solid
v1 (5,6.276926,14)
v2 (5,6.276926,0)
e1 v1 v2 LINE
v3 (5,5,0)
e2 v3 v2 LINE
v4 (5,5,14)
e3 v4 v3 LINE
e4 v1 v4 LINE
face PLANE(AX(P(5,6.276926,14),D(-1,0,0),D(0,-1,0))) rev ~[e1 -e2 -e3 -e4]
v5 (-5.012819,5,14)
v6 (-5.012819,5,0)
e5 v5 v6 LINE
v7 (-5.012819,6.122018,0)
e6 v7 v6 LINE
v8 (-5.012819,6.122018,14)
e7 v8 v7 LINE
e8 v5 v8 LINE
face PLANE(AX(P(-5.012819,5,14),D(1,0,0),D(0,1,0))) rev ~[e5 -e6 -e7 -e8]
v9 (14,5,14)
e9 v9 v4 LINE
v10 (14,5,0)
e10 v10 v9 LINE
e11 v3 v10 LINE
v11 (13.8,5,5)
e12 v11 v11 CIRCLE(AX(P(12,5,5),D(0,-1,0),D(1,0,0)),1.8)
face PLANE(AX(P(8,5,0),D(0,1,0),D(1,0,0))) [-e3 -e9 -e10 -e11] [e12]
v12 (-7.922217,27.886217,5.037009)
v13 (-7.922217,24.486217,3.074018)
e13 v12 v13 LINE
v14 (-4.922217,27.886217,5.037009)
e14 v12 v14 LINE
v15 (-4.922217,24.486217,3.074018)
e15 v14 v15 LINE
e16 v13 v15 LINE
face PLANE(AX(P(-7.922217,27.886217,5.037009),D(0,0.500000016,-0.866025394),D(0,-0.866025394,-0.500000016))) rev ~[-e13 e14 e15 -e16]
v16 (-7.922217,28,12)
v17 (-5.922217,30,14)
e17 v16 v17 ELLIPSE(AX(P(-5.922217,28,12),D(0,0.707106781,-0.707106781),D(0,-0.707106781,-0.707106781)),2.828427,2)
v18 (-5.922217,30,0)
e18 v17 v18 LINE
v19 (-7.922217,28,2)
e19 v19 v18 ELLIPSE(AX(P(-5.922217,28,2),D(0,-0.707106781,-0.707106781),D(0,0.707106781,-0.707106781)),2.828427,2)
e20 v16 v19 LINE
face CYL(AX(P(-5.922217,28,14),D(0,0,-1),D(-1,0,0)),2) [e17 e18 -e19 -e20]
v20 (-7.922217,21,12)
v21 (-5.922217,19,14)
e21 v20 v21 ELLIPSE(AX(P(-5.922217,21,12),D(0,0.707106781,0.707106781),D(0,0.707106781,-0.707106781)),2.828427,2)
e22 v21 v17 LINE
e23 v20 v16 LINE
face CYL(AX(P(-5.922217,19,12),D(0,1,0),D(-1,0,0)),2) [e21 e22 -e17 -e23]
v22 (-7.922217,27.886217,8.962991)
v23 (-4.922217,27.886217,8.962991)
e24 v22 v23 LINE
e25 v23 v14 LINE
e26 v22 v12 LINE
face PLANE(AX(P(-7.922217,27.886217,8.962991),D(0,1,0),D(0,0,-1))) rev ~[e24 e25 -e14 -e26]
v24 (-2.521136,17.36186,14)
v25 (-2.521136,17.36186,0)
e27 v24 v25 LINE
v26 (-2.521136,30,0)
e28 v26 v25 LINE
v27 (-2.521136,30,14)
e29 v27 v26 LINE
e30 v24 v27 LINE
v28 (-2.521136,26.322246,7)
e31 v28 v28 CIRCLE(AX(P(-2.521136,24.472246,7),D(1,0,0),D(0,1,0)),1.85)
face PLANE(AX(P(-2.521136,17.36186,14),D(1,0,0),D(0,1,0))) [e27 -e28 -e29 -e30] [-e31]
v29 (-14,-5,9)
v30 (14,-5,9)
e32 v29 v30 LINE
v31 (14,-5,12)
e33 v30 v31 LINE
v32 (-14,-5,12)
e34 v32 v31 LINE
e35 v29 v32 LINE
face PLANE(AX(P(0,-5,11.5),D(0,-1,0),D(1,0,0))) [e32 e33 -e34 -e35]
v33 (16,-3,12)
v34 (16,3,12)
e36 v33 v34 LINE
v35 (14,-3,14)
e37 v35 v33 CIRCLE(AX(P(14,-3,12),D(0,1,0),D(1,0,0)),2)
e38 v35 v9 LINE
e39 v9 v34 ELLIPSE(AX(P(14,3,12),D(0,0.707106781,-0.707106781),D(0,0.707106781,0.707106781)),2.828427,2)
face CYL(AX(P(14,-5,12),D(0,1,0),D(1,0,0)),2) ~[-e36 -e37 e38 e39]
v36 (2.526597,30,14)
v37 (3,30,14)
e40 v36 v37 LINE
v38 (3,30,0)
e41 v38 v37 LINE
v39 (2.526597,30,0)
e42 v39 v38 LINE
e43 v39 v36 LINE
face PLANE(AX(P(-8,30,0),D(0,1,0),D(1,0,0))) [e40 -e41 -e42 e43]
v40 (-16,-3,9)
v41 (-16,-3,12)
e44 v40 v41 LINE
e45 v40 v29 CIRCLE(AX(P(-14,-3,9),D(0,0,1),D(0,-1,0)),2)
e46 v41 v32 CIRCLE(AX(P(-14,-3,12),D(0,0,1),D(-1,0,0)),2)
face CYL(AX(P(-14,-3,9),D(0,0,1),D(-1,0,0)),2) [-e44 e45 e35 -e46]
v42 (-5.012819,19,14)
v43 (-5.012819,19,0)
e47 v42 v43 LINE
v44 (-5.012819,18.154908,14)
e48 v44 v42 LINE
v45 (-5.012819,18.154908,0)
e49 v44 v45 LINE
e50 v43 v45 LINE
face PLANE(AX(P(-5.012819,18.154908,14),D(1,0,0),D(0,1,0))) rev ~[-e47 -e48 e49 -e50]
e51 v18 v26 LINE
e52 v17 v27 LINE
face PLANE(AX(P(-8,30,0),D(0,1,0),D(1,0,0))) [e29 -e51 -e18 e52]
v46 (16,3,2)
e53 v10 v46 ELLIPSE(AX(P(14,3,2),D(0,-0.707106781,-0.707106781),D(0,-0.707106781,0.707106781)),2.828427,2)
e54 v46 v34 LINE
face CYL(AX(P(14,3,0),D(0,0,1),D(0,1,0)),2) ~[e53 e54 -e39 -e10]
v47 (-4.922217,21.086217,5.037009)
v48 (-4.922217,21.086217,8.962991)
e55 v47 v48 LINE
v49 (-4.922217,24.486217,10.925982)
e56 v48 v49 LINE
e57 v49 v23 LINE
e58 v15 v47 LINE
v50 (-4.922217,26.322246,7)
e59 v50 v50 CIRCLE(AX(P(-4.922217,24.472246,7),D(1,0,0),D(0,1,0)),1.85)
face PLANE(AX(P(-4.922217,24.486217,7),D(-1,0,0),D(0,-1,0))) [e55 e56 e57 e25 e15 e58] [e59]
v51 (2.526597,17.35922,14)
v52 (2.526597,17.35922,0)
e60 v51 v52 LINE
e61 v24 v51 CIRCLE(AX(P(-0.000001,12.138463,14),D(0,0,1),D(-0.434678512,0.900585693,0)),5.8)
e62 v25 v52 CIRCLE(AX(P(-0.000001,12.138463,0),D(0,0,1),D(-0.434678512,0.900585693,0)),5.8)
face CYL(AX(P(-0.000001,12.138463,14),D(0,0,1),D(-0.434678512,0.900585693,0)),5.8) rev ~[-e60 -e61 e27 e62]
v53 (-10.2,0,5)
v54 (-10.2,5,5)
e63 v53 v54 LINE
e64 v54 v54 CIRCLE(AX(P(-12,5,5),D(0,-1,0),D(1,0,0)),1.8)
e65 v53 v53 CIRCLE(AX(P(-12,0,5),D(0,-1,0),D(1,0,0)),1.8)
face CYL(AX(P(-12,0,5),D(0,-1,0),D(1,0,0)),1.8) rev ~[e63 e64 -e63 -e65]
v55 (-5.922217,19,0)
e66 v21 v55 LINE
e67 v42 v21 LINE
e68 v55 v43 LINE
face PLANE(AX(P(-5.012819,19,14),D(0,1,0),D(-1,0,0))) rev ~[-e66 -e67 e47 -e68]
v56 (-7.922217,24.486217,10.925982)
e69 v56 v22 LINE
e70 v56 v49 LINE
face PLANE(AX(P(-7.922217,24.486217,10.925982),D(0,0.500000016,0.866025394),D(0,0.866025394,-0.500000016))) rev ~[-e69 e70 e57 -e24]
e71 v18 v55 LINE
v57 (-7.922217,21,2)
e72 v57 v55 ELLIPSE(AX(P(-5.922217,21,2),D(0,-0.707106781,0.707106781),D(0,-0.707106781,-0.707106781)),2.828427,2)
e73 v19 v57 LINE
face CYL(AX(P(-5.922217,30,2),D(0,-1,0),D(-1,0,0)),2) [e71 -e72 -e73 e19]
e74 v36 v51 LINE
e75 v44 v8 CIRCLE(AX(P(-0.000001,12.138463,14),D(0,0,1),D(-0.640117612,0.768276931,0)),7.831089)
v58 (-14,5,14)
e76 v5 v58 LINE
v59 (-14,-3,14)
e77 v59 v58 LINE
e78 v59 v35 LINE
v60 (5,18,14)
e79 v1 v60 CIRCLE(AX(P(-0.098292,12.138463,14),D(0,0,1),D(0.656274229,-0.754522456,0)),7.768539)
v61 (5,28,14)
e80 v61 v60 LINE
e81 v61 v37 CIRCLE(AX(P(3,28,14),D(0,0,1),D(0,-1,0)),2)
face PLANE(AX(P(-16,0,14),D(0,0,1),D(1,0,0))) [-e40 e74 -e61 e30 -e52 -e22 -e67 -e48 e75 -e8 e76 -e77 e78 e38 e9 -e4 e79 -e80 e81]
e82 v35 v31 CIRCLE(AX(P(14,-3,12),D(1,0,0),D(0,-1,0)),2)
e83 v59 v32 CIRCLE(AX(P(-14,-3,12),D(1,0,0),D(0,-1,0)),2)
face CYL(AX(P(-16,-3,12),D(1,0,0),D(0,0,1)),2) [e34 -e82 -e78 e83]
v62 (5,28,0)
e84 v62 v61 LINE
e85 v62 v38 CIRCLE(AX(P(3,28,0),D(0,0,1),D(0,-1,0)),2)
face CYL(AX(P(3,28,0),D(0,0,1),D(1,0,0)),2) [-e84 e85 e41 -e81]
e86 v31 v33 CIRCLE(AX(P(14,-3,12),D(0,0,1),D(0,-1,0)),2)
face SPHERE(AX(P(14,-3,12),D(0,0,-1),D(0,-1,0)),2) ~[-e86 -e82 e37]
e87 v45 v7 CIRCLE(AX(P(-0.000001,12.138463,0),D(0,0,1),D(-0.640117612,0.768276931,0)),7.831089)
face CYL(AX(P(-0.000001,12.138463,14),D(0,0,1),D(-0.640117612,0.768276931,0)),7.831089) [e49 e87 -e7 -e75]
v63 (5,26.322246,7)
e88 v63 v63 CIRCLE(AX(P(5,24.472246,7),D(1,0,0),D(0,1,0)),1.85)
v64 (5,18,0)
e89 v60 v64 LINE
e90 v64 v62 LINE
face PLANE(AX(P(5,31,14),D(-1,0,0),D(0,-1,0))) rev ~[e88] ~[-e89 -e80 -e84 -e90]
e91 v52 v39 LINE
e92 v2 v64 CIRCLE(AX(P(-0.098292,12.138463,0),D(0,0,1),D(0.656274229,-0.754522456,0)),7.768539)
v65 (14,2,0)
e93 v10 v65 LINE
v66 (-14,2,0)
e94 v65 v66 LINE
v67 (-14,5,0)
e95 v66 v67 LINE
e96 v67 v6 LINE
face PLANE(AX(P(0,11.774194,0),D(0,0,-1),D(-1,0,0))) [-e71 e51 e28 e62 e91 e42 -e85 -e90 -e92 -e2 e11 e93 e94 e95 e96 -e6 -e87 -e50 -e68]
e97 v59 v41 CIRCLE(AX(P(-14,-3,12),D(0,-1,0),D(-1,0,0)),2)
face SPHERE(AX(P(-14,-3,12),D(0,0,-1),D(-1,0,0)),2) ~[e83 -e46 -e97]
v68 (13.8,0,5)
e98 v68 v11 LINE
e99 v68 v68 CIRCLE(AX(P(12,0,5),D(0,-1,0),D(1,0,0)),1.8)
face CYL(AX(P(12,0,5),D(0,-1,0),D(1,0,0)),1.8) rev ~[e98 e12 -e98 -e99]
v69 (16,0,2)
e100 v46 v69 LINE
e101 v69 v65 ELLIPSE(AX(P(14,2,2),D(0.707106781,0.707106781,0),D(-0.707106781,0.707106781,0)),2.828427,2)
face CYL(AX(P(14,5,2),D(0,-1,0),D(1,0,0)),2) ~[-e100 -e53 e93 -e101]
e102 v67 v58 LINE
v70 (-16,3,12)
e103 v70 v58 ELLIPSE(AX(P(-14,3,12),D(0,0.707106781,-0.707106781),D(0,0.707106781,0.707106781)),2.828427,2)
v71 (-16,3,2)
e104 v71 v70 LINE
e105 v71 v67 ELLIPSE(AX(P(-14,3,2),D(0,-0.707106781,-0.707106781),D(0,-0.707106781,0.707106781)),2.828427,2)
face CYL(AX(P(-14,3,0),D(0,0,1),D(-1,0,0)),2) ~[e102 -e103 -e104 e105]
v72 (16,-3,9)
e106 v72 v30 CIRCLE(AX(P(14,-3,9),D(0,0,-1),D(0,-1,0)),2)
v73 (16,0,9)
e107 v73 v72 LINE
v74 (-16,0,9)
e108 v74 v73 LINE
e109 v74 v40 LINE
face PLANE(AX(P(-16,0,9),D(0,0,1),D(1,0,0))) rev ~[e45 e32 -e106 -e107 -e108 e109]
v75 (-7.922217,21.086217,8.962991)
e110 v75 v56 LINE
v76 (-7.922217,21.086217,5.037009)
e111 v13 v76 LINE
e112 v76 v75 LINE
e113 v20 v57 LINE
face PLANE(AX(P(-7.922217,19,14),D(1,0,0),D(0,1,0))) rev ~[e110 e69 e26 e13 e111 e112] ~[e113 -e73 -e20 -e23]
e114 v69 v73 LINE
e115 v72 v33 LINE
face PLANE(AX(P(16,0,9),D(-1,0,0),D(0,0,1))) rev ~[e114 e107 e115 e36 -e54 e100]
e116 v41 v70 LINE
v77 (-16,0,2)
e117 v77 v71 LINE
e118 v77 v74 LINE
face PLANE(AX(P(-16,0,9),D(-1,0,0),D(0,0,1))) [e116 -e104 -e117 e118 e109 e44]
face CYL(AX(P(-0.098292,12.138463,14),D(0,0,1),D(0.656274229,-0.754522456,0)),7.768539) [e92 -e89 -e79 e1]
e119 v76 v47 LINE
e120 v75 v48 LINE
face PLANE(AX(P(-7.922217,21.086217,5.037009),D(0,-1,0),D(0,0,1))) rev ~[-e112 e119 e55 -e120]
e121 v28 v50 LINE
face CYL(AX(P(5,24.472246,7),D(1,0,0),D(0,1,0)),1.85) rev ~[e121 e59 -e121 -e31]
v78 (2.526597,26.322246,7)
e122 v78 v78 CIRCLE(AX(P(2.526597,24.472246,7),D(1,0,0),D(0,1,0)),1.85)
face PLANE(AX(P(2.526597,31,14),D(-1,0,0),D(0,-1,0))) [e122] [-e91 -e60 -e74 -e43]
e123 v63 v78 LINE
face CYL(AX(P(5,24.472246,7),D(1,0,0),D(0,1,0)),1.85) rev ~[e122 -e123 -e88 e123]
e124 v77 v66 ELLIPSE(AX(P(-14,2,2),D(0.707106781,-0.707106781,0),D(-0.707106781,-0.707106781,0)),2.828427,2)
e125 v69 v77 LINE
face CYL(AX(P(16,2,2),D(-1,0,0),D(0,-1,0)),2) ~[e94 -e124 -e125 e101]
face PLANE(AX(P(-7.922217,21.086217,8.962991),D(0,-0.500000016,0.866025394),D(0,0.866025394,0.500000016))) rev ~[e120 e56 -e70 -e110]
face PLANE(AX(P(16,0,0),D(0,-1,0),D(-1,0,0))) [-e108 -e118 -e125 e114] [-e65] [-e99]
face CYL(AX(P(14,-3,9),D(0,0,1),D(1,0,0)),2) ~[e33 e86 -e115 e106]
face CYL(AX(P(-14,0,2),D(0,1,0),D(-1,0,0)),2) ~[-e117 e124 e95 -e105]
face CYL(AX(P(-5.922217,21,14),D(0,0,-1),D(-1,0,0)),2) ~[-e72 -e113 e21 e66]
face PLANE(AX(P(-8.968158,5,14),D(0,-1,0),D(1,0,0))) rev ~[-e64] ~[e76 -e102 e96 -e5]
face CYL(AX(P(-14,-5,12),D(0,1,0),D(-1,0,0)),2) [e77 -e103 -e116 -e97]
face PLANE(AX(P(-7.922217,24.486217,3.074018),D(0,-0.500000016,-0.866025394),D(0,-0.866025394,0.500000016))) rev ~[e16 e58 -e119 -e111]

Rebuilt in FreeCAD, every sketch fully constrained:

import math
import FreeCAD as App
import Part
import Sketcher
Q = App.Units.Quantity


def edges_at(feature, points):
    """Names of the edges that pass closest to the given points."""
    edges = feature.Shape.Edges
    near = lambda p: min(range(len(edges)), key=lambda i: edges[i].distToShape(Part.Vertex(*p))[0])
    return sorted({f"Edge{near(p) + 1}" for p in points})


def add_polygon(sketch, points):
    """Adds a closed chain of lines whose ends are joined by coincident constraints."""
    first, n = sketch.GeometryCount, len(points)
    for a, b in zip(points, points[1:] + points[:1]):
        sketch.addGeometry(Part.LineSegment(App.Vector(*a, 0), App.Vector(*b, 0)), False)
    for i in range(n):
        sketch.addConstraint(Sketcher.Constraint("Coincident", first + i, 2, first + (i + 1) % n, 1))

doc = App.newDocument("Part")
params = doc.addObject("Spreadsheet::Sheet", "Params")
for row, (alias, value) in enumerate([
    ("sketch1_width", "16 mm"),
    ("sketch1_width2", "8 mm"),
    ("sketch1_height", "25 mm"),
    ("sketch1_height2", "5 mm"),
    ("pad1_length", "14 mm"),
    ("sketch2_radius", "5.8 mm"),
    ("sketch2_width", "5 mm"),
    ("sketch2_height", "13 mm"),
    ("sketch2_height2", "26 mm"),
    ("pocket2_length", "3 mm"),
    ("sketch4_diameter", "3.7 mm"),
    ("sketch5_diameter", "3.6 mm"),
    ("pocket4_length", "5 mm"),
    ("sketch6_width", "32 mm"),
    ("sketch6_height", "5 mm"),
    ("pad2_length", "5 mm"),
    ("fillet_radius", "2 mm"),
], start=1):
    params.set(f"A{row}", alias)
    params.set(f"B{row}", "=" + value)
    params.setAlias(f"B{row}", alias)

body = doc.addObject("PartDesign::Body", "Body")

# Sketch on XY plane
sketch1 = doc.addObject("Sketcher::SketchObject", "Sketch")
body.addObject(sketch1)
sketch1.AttachmentSupport = (doc.XY_Plane, [""])
sketch1.MapMode = "FlatFace"
add_polygon(sketch1, [(8, 30), (-8, 30), (-8, 5), (-16, 5), (-16, 0), (16, 0), (16, 5), (8, 5)])  # lines 0-7
sketch1.addConstraint([
    Sketcher.Constraint("Horizontal", 0),
    Sketcher.Constraint("Vertical", 1),
    Sketcher.Constraint("Horizontal", 2),
    Sketcher.Constraint("Vertical", 3),
    Sketcher.Constraint("Horizontal", 4),
    Sketcher.Constraint("Vertical", 5),
    Sketcher.Constraint("Horizontal", 6),
    Sketcher.Constraint("Vertical", 7),
    Sketcher.Constraint("Symmetric", 3, 2, 4, 2, -1, 1),
    Sketcher.Constraint("Symmetric", 1, 2, 6, 2, -2),
    Sketcher.Constraint("DistanceX", 0, 2, 0, 1, 16.0),
    Sketcher.Constraint("DistanceX", 2, 2, 2, 1, 8.0),
    Sketcher.Constraint("DistanceY", 1, 2, 1, 1, 25.0),
    Sketcher.Constraint("DistanceY", 3, 2, 3, 1, 5.0),
])
sketch1.setExpression("Constraints[18]", "Params.sketch1_width")
sketch1.setExpression("Constraints[19]", "Params.sketch1_width2")
sketch1.setExpression("Constraints[20]", "Params.sketch1_height")
sketch1.setExpression("Constraints[21]", "Params.sketch1_height2")
pad1 = doc.addObject("PartDesign::Pad", "Pad")
body.addObject(pad1)
pad1.Profile = sketch1
pad1.setExpression("Length", "Params.pad1_length")

# Sketch on XY plane
sketch2 = doc.addObject("Sketcher::SketchObject", "Sketch001")
body.addObject(sketch2)
sketch2.AttachmentSupport = (doc.XY_Plane, [""])
sketch2.MapMode = "FlatFace"
sketch2.AttachmentOffset = App.Placement(App.Vector(0, 0, 14), App.Rotation())
sketch2.addGeometry([
    Part.ArcOfCircle(Part.Circle(App.Vector(0, 12.1, 0), App.Vector(0, 0, 1), 7.8), math.radians(130), math.radians(230)),  # 0
    Part.LineSegment(App.Vector(-5, 18.2, 0), App.Vector(-5, 19, 0)),  # 1
    Part.LineSegment(App.Vector(-5, 19, 0), App.Vector(-7.9, 19, 0)),  # 2
    Part.LineSegment(App.Vector(-7.9, 19, 0), App.Vector(-7.9, 30.9, 0)),  # 3
    Part.LineSegment(App.Vector(-7.9, 30.9, 0), App.Vector(-8.9, 30.9, 0)),  # 4
    Part.LineSegment(App.Vector(-8.9, 30.9, 0), App.Vector(-9, 5, 0)),  # 5
    Part.LineSegment(App.Vector(-9, 5, 0), App.Vector(-5, 5, 0)),  # 6
    Part.LineSegment(App.Vector(-5, 5, 0), App.Vector(-5, 6.1, 0)),  # 7
    Part.LineSegment(App.Vector(5, 31, 0), App.Vector(5, 18, 0)),  # 8
    Part.ArcOfCircle(Part.Circle(App.Vector(-0.1, 12.1, 0), App.Vector(0, 0, 1), 7.8), math.radians(-49), math.radians(49)),  # 9
    Part.LineSegment(App.Vector(5, 6.3, 0), App.Vector(5, 5, 0)),  # 10
    Part.LineSegment(App.Vector(5, 5, 0), App.Vector(10, 5, 0)),  # 11
    Part.LineSegment(App.Vector(10, 5, 0), App.Vector(10, 31, 0)),  # 12
    Part.LineSegment(App.Vector(10, 31, 0), App.Vector(5, 31, 0)),  # 13
    Part.ArcOfCircle(Part.Circle(App.Vector(0, 12.1, 0), App.Vector(0, 0, 1), 5.8), math.radians(116), math.radians(424)),  # 14
    Part.LineSegment(App.Vector(2.5, 17.4, 0), App.Vector(2.5, 31, 0)),  # 15
    Part.LineSegment(App.Vector(2.5, 31, 0), App.Vector(-2.5, 31, 0)),  # 16
    Part.LineSegment(App.Vector(-2.5, 31, 0), App.Vector(-2.5, 17.4, 0)),  # 17
], False)
sketch2.addConstraint([
    Sketcher.Constraint("Coincident", 0, 1, 1, 1),
    Sketcher.Constraint("Coincident", 1, 2, 2, 1),
    Sketcher.Constraint("Coincident", 2, 2, 3, 1),
    Sketcher.Constraint("Coincident", 3, 2, 4, 1),
    Sketcher.Constraint("Coincident", 4, 2, 5, 1),
    Sketcher.Constraint("Coincident", 5, 2, 6, 1),
    Sketcher.Constraint("Coincident", 6, 2, 7, 1),
    Sketcher.Constraint("Coincident", 7, 2, 0, 2),
    Sketcher.Constraint("Coincident", 8, 2, 9, 2),
    Sketcher.Constraint("Coincident", 9, 1, 10, 1),
    Sketcher.Constraint("Coincident", 10, 2, 11, 1),
    Sketcher.Constraint("Coincident", 11, 2, 12, 1),
    Sketcher.Constraint("Coincident", 12, 2, 13, 1),
    Sketcher.Constraint("Coincident", 13, 2, 8, 1),
    Sketcher.Constraint("Coincident", 14, 2, 15, 1),
    Sketcher.Constraint("Coincident", 15, 2, 16, 1),
    Sketcher.Constraint("Coincident", 16, 2, 17, 1),
    Sketcher.Constraint("Coincident", 17, 2, 14, 1),
    Sketcher.Constraint("Vertical", 1),
    Sketcher.Constraint("Horizontal", 2),
    Sketcher.Constraint("Vertical", 3),
    Sketcher.Constraint("Horizontal", 6),
    Sketcher.Constraint("Vertical", 7),
    Sketcher.Constraint("Vertical", 8),
    Sketcher.Constraint("Vertical", 10),
    Sketcher.Constraint("Horizontal", 11),
    Sketcher.Constraint("Vertical", 12),
    Sketcher.Constraint("Horizontal", 13),
    Sketcher.Constraint("Vertical", 15),
    Sketcher.Constraint("Horizontal", 16),
    Sketcher.Constraint("Vertical", 17),
    Sketcher.Constraint("Coincident", 14, 3, 0, 3),
    Sketcher.Constraint("PointOnObject", 0, 3, -2),
    Sketcher.Constraint("Horizontal", 0, 3, 9, 3),
    Sketcher.Constraint("Horizontal", 6, 2, 10, 2),
    Sketcher.Constraint("Horizontal", 13, 2, 15, 2),
    Sketcher.Constraint("Vertical", 1, 2, 6, 2),
    Sketcher.Constraint("Vertical", 8, 2, 9, 1),
    Sketcher.Constraint("Radius", 14, 5.8),
    Sketcher.Constraint("DistanceX", 11, 1, 11, 2, 5.0),
    Sketcher.Constraint("DistanceY", 8, 2, 8, 1, 13.0),
    Sketcher.Constraint("DistanceY", 12, 1, 12, 2, 26.0),
    Sketcher.Constraint("DistanceY", -1, 1, 1, 2, 19.0),
    Sketcher.Constraint("DistanceY", -1, 1, 5, 2, 5.0),
    Sketcher.Constraint("DistanceX", -1, 1, 8, 2, 5.0),
    Sketcher.Constraint("Radius", 0, 7.831089),
    Sketcher.Constraint("Radius", 9, 7.768539),
    Sketcher.Constraint("DistanceX", 6, 1, 6, 2, 3.955339),
    Sketcher.Constraint("DistanceY", 3, 1, 3, 2, 11.944389),
    Sketcher.Constraint("DistanceY", 15, 1, 15, 2, 13.64078),
    Sketcher.Constraint("DistanceY", 17, 2, 17, 1, 13.63814),
    Sketcher.Constraint("DistanceX", 0, 3, 14, 2, 2.526598),
    Sketcher.Constraint("Distance", 5, 25.926482),
    Sketcher.Constraint("DistanceX", 2, 2, 2, 1, 2.909398),
    Sketcher.Constraint("DistanceY", 1, 1, 1, 2, 0.845092),
    Sketcher.Constraint("DistanceX", 4, 2, 3, 2, 0.968158),
])
sketch2.setExpression("Constraints[38]", "Params.sketch2_radius")
sketch2.setExpression("Constraints[39]", "Params.sketch2_width")
sketch2.setExpression("Constraints[40]", "Params.sketch2_height")
sketch2.setExpression("Constraints[41]", "Params.sketch2_height2")
pocket1 = doc.addObject("PartDesign::Pocket", "Pocket")
body.addObject(pocket1)
pocket1.Profile = sketch2
pocket1.Type = "ThroughAll"

# Sketch on YZ plane
sketch3 = doc.addObject("Sketcher::SketchObject", "Sketch002")
body.addObject(sketch3)
sketch3.AttachmentSupport = (doc.YZ_Plane, [""])
sketch3.MapMode = "FlatFace"
sketch3.AttachmentOffset = App.Placement(App.Vector(0, 0, -7.922217), App.Rotation())
add_polygon(sketch3, [(21.1, 5), (21.1, 9), (24.5, 10.9), (27.9, 9), (27.9, 5), (24.5, 3.1)])  # lines 0-5
sketch3.addConstraint([
    Sketcher.Constraint("Vertical", 0),
    Sketcher.Constraint("Vertical", 3),
    Sketcher.Constraint("Parallel", 1, 4),
    Sketcher.Constraint("Parallel", 2, 5),
    Sketcher.Constraint("Horizontal", 0, 2, 2, 2),
    Sketcher.Constraint("Horizontal", 3, 2, 5, 2),
    Sketcher.Constraint("Vertical", 1, 2, 4, 2),
    Sketcher.Constraint("Angle", 1, Q("30.000001 deg")),
    Sketcher.Constraint("DistanceX", 0, 2, 1, 2, 3.4),
    Sketcher.Constraint("DistanceY", 0, 1, 0, 2, 3.925982),
    Sketcher.Constraint("DistanceY", -1, 1, 0, 2, 8.962991),
    Sketcher.Constraint("DistanceX", -1, 1, 0, 2, 21.086217),
])
pocket2 = doc.addObject("PartDesign::Pocket", "Pocket001")
body.addObject(pocket2)
pocket2.Profile = sketch3
pocket2.setExpression("Length", "Params.pocket2_length")
pocket2.Reversed = True

# Sketch on YZ plane
sketch4 = doc.addObject("Sketcher::SketchObject", "Sketch003")
body.addObject(sketch4)
sketch4.AttachmentSupport = (doc.YZ_Plane, [""])
sketch4.MapMode = "FlatFace"
sketch4.AttachmentOffset = App.Placement(App.Vector(0, 0, 5), App.Rotation())
sketch4.addGeometry(Part.Circle(App.Vector(24.5, 7, 0), App.Vector(0, 0, 1), 1.9), False)
sketch4.addConstraint([
    Sketcher.Constraint("Diameter", 0, 3.7),
    Sketcher.Constraint("DistanceY", -1, 1, 0, 3, 7.0),
    Sketcher.Constraint("DistanceX", -1, 1, 0, 3, 24.472246),
])
sketch4.setExpression("Constraints[0]", "Params.sketch4_diameter")
pocket3 = doc.addObject("PartDesign::Pocket", "Pocket002")
body.addObject(pocket3)
pocket3.Profile = sketch4
pocket3.Type = "ThroughAll"

# Sketch on XZ plane
sketch5 = doc.addObject("Sketcher::SketchObject", "Sketch004")
body.addObject(sketch5)
sketch5.AttachmentSupport = (doc.XZ_Plane, [""])
sketch5.MapMode = "FlatFace"
sketch5.addGeometry([
    Part.Circle(App.Vector(-12, 5, 0), App.Vector(0, 0, 1), 1.8),
    Part.Circle(App.Vector(12, 5, 0), App.Vector(0, 0, 1), 1.8),
], False)
sketch5.addConstraint([
    Sketcher.Constraint("Equal", 0, 1),
    Sketcher.Constraint("Symmetric", 0, 3, 1, 3, -2),
    Sketcher.Constraint("Diameter", 0, 3.6),
    Sketcher.Constraint("DistanceX", 0, 3, -1, 1, 12.0),
    Sketcher.Constraint("DistanceY", -1, 1, 0, 3, 5.0),
])
sketch5.setExpression("Constraints[2]", "Params.sketch5_diameter")
pocket4 = doc.addObject("PartDesign::Pocket", "Pocket003")
body.addObject(pocket4)
pocket4.Profile = sketch5
pocket4.setExpression("Length", "Params.pocket4_length")

# Sketch on XZ plane
sketch6 = doc.addObject("Sketcher::SketchObject", "Sketch005")
body.addObject(sketch6)
sketch6.AttachmentSupport = (doc.XZ_Plane, [""])
sketch6.MapMode = "FlatFace"
add_polygon(sketch6, [(-16, 14), (-16, 9), (16, 9), (16, 14)])  # lines 0-3
sketch6.addConstraint([
    Sketcher.Constraint("Vertical", 0),
    Sketcher.Constraint("Horizontal", 1),
    Sketcher.Constraint("Vertical", 2),
    Sketcher.Constraint("Horizontal", 3),
    Sketcher.Constraint("DistanceX", 1, 1, 1, 2, 32.0),
    Sketcher.Constraint("DistanceY", 0, 2, 0, 1, 5.0),
    Sketcher.Constraint("DistanceX", 0, 2, -1, 1, 16.0),
    Sketcher.Constraint("DistanceY", -1, 1, 0, 2, 9.0),
])
sketch6.setExpression("Constraints[8]", "Params.sketch6_width")
sketch6.setExpression("Constraints[9]", "Params.sketch6_height")
pad2 = doc.addObject("PartDesign::Pad", "Pad001")
body.addObject(pad2)
pad2.Profile = sketch6
pad2.setExpression("Length", "Params.pad2_length")
doc.recompute()

fillet = doc.addObject("PartDesign::Fillet", "Fillet")
body.addObject(fillet)
fillet.Base = (pad2, edges_at(pad2, [
    (-16, -5, 11.5),
    (16, -5, 11.5),
    (16, 5, 7),
    (5, 30, 7),
    (-16, 5, 7),
    (-7.922, 30, 7),
    (0, 0, 0),
    (-16, 0, 14),
    (0, -5, 14),
    (16, 0, 14),
    (16, 2.5, 0),
    (-16, 2.5, 0),
    (-7.922, 24.5, 0),
    (-7.922, 24.5, 14),
    (-7.922, 19, 7),
]))
fillet.setExpression("Radius", "Params.fillet_radius")

doc.recompute()
